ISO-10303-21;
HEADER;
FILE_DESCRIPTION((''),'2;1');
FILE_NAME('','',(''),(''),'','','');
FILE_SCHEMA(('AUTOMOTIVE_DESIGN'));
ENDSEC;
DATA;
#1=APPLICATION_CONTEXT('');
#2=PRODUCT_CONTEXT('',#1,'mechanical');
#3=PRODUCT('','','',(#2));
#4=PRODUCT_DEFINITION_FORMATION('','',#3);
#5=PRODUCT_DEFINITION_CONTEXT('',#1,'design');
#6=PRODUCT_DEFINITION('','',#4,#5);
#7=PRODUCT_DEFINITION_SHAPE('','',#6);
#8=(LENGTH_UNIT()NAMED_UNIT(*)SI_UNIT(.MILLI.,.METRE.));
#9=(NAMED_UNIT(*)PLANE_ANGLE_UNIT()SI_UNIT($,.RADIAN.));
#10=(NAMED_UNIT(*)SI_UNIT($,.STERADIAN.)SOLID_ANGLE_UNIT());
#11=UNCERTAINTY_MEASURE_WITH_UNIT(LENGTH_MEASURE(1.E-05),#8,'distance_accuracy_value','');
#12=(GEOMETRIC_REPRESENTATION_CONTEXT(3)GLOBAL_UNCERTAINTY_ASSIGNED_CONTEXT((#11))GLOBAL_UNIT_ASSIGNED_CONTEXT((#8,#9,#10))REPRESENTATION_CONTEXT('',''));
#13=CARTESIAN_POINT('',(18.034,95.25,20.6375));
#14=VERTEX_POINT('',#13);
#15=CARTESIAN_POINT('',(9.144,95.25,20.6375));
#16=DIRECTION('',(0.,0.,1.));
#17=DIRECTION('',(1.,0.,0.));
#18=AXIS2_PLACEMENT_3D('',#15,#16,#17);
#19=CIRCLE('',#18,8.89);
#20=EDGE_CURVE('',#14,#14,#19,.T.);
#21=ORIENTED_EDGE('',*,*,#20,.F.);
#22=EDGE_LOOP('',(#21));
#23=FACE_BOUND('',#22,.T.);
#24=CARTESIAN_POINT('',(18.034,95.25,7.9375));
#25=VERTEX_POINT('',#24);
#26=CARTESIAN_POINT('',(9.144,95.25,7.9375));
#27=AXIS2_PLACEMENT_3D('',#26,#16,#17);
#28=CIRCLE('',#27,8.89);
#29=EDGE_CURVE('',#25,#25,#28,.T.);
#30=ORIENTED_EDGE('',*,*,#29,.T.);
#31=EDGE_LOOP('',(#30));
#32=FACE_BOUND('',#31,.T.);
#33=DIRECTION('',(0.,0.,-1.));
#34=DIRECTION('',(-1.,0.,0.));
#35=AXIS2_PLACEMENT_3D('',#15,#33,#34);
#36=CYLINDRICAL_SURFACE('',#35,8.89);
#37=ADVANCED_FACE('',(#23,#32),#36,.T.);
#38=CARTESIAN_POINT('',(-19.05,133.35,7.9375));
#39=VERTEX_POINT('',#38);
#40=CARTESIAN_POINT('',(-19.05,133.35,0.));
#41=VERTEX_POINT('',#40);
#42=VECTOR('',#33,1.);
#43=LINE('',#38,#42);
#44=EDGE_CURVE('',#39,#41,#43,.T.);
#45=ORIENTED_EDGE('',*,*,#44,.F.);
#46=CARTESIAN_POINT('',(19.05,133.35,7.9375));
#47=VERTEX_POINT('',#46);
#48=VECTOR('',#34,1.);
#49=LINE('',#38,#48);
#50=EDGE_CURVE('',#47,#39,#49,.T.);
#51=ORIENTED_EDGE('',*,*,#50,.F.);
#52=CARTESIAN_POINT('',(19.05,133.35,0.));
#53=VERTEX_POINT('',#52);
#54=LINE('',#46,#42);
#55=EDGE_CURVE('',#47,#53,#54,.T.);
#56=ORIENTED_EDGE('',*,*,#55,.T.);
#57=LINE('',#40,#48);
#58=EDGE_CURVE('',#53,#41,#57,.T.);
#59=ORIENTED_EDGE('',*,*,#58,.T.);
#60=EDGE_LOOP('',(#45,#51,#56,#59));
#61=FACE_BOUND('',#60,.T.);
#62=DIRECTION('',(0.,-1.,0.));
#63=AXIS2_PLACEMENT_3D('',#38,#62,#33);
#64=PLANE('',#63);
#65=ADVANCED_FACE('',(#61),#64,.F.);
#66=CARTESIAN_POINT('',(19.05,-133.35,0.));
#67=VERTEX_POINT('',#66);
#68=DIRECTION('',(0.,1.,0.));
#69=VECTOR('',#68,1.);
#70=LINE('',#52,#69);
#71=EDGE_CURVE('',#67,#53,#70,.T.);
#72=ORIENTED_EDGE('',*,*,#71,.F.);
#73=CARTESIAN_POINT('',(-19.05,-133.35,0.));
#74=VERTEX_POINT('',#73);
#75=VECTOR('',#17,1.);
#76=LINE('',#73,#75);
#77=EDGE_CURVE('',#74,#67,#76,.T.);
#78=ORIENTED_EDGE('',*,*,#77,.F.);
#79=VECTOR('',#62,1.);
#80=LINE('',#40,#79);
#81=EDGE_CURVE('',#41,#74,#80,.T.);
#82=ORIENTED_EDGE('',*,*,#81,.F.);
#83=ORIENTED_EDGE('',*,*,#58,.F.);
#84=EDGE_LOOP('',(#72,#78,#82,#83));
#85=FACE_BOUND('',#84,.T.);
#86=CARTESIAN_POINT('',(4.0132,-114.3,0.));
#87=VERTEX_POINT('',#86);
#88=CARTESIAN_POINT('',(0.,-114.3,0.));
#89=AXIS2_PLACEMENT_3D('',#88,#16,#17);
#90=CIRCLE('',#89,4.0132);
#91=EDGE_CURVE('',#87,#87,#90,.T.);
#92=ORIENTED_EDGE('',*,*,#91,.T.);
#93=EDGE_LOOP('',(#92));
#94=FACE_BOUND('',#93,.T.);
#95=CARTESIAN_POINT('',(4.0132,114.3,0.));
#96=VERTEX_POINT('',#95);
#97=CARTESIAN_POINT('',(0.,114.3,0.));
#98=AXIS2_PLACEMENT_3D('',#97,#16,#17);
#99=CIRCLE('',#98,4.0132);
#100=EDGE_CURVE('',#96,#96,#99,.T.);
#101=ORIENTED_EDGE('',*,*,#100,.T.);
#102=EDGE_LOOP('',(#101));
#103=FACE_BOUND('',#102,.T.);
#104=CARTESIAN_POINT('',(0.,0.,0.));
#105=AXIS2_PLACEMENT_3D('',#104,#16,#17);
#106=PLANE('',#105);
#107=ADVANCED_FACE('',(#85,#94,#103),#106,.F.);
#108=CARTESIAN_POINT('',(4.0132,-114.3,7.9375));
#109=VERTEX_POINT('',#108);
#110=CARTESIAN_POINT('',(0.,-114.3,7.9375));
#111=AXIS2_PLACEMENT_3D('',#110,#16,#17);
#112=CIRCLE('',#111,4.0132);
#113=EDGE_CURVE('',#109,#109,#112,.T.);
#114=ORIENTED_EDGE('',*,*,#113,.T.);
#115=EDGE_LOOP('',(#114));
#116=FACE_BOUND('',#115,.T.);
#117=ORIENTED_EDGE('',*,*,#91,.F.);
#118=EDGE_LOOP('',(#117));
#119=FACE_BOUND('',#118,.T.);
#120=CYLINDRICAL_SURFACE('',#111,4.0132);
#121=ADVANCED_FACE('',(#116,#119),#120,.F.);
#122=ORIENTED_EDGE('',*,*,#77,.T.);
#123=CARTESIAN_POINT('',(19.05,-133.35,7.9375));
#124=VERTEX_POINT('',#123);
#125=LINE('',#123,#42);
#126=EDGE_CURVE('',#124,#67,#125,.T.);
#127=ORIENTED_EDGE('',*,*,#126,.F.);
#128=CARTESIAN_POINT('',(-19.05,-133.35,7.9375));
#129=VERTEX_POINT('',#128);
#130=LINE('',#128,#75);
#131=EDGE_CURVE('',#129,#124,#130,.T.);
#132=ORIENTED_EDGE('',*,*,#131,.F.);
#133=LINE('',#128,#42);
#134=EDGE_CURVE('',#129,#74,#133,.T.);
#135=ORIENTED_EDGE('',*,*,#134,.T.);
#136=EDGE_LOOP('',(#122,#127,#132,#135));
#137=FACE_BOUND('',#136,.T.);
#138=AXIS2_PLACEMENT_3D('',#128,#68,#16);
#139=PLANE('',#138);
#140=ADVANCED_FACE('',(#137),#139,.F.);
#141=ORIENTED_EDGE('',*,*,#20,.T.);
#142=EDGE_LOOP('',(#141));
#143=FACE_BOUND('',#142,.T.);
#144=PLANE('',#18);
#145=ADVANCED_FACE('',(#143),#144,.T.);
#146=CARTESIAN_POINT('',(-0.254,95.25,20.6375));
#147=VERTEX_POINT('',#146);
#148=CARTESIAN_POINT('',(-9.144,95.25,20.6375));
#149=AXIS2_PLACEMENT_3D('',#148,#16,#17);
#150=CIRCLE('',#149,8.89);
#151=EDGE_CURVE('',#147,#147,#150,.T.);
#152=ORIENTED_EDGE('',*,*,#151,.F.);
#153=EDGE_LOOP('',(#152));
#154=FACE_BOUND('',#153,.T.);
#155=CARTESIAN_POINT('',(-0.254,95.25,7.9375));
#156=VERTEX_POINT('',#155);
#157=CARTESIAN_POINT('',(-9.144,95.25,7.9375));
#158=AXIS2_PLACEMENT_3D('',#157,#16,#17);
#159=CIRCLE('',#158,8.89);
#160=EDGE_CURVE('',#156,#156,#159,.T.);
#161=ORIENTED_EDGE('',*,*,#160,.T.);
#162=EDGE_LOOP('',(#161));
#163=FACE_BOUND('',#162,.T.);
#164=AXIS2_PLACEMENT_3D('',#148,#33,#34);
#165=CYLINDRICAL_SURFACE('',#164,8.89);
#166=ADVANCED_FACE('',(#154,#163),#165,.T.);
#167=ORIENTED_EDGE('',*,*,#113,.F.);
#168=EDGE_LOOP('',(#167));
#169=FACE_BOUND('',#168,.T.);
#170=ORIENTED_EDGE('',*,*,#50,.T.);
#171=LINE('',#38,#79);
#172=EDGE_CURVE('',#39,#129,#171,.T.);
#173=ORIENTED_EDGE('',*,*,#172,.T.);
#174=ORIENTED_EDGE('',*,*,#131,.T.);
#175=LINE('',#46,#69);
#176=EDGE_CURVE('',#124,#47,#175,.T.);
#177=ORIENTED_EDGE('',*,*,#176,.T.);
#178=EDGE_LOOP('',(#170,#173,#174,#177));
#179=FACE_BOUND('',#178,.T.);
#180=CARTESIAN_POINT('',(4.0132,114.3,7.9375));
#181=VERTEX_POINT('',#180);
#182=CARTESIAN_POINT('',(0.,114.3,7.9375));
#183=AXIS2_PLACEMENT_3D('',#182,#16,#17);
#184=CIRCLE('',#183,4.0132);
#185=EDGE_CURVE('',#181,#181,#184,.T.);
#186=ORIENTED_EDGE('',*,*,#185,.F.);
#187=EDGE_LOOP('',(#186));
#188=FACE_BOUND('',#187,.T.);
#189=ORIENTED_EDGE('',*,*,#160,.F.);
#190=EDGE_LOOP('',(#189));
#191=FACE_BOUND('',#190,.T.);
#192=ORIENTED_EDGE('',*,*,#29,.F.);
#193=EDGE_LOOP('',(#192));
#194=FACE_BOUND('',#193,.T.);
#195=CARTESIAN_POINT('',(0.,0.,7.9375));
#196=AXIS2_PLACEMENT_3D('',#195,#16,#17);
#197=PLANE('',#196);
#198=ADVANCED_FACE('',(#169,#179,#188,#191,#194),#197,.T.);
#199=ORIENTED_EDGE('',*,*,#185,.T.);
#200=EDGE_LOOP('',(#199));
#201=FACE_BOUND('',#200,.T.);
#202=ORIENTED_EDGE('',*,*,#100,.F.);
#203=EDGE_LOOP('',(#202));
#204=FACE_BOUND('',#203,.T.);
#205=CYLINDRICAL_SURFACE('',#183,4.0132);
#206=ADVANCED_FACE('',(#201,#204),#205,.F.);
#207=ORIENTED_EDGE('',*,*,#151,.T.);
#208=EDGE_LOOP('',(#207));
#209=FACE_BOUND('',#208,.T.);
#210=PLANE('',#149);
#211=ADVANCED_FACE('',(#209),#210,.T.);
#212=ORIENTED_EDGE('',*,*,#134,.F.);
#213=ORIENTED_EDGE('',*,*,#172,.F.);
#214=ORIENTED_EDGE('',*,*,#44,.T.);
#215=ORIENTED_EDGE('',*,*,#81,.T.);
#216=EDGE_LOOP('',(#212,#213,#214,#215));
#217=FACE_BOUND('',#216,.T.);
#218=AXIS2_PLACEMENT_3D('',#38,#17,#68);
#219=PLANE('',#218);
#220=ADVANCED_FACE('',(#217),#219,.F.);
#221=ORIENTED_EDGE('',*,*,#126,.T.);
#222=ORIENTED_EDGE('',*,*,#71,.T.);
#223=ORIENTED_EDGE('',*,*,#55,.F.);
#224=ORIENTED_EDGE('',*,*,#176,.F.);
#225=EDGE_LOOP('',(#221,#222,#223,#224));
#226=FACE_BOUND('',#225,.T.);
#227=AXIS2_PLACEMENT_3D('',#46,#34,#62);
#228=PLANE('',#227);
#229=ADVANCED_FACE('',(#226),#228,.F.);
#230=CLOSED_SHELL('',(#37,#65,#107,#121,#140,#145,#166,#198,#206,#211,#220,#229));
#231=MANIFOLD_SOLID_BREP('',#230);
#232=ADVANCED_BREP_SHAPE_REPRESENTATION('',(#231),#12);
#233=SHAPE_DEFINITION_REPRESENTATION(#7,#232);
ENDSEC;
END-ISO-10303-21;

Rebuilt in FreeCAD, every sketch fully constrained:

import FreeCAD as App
import Part
import Sketcher

V = App.Vector
Q = App.Units.Quantity

doc = App.newDocument("Part")
body = doc.addObject("PartDesign::Body", "Body")

sketch1 = body.newObject("Sketcher::SketchObject", "Sketch")
sketch1.AttachmentSupport = (doc.getObject("XY_Plane"), [""])
sketch1.MapMode = "FlatFace"
sketch1.addGeometry(Part.LineSegment(V(-19.05, 133.35, 0), V(-19.05, -133.35, 0)), False)
sketch1.addGeometry(Part.LineSegment(V(-19.05, -133.35, 0), V(19.05, -133.35, 0)), False)
sketch1.addGeometry(Part.LineSegment(V(19.05, -133.35, 0), V(19.05, 133.35, 0)), False)
sketch1.addGeometry(Part.LineSegment(V(19.05, 133.35, 0), V(-19.05, 133.35, 0)), False)
sketch1.addConstraint(Sketcher.Constraint("Coincident", 0, 2, 1, 1))
sketch1.addConstraint(Sketcher.Constraint("Coincident", 1, 2, 2, 1))
sketch1.addConstraint(Sketcher.Constraint("Coincident", 2, 2, 3, 1))
sketch1.addConstraint(Sketcher.Constraint("Coincident", 3, 2, 0, 1))
sketch1.addConstraint(Sketcher.Constraint("Vertical", 0))
sketch1.addConstraint(Sketcher.Constraint("Horizontal", 1))
sketch1.addConstraint(Sketcher.Constraint("Vertical", 2))
sketch1.addConstraint(Sketcher.Constraint("Horizontal", 3))
sketch1.addConstraint(Sketcher.Constraint("Symmetric", 0, 2, 2, 2, -1, 1))
sketch1.addConstraint(Sketcher.Constraint("DistanceX", 1, 1, 1, 2, Q("1.5 in")))
sketch1.addConstraint(Sketcher.Constraint("DistanceY", 0, 2, 0, 1, Q("10.5 in")))
pad1 = body.newObject("PartDesign::Pad", "Pad")
pad1.Profile = sketch1
pad1.Length = Q("0.3125 in")

sketch2 = body.newObject("Sketcher::SketchObject", "Sketch001")
sketch2.AttachmentSupport = (doc.getObject("XY_Plane"), [""])
sketch2.MapMode = "FlatFace"
sketch2.AttachmentOffset = App.Placement(V(0, 0, 0.3125 * 25.4), App.Rotation())
sketch2.addGeometry(Part.Circle(V(0, 114.3, 0), V(0, 0, 1), 4.0132), False)
sketch2.addConstraint(Sketcher.Constraint("PointOnObject", 0, 3, -2))
sketch2.addConstraint(Sketcher.Constraint("Diameter", 0, Q("0.316 in")))
sketch2.addConstraint(Sketcher.Constraint("DistanceY", -1, 1, 0, 3, Q("4.5 in")))
doc.recompute()
hole = body.newObject("PartDesign::Hole", "Hole")
hole.Profile = sketch2
hole.ThreadType = "None"
hole.Diameter = Q("0.316 in")
hole.DepthType = "ThroughAll"
doc.recompute()

mirrored = body.newObject("PartDesign::Mirrored", "Mirrored")
mirrored.Originals = [hole]
mirrored.MirrorPlane = (doc.getObject("XZ_Plane"), [""])
body.Tip = mirrored

sketch3 = body.newObject("Sketcher::SketchObject", "Sketch002")
sketch3.AttachmentSupport = (doc.getObject("XY_Plane"), [""])
sketch3.MapMode = "FlatFace"
sketch3.AttachmentOffset = App.Placement(V(0, 0, 0.3125 * 25.4), App.Rotation())
sketch3.addGeometry(Part.Circle(V(-9.144, 95.25, 0), V(0, 0, 1), 8.89), False)
sketch3.addGeometry(Part.Circle(V(9.144, 95.25, 0), V(0, 0, 1), 8.89), False)
sketch3.addConstraint(Sketcher.Constraint("Equal", 0, 1))
sketch3.addConstraint(Sketcher.Constraint("Symmetric", 0, 3, 1, 3, -2))
sketch3.addConstraint(Sketcher.Constraint("Diameter", 0, Q("0.7 in")))
sketch3.addConstraint(Sketcher.Constraint("DistanceX", 0, 3, -1, 1, Q("0.36 in")))
sketch3.addConstraint(Sketcher.Constraint("DistanceY", -1, 1, 0, 3, Q("3.75 in")))
pad2 = body.newObject("PartDesign::Pad", "Pad001")
pad2.Profile = sketch3
pad2.Length = Q("0.5 in")

doc.recompute()
